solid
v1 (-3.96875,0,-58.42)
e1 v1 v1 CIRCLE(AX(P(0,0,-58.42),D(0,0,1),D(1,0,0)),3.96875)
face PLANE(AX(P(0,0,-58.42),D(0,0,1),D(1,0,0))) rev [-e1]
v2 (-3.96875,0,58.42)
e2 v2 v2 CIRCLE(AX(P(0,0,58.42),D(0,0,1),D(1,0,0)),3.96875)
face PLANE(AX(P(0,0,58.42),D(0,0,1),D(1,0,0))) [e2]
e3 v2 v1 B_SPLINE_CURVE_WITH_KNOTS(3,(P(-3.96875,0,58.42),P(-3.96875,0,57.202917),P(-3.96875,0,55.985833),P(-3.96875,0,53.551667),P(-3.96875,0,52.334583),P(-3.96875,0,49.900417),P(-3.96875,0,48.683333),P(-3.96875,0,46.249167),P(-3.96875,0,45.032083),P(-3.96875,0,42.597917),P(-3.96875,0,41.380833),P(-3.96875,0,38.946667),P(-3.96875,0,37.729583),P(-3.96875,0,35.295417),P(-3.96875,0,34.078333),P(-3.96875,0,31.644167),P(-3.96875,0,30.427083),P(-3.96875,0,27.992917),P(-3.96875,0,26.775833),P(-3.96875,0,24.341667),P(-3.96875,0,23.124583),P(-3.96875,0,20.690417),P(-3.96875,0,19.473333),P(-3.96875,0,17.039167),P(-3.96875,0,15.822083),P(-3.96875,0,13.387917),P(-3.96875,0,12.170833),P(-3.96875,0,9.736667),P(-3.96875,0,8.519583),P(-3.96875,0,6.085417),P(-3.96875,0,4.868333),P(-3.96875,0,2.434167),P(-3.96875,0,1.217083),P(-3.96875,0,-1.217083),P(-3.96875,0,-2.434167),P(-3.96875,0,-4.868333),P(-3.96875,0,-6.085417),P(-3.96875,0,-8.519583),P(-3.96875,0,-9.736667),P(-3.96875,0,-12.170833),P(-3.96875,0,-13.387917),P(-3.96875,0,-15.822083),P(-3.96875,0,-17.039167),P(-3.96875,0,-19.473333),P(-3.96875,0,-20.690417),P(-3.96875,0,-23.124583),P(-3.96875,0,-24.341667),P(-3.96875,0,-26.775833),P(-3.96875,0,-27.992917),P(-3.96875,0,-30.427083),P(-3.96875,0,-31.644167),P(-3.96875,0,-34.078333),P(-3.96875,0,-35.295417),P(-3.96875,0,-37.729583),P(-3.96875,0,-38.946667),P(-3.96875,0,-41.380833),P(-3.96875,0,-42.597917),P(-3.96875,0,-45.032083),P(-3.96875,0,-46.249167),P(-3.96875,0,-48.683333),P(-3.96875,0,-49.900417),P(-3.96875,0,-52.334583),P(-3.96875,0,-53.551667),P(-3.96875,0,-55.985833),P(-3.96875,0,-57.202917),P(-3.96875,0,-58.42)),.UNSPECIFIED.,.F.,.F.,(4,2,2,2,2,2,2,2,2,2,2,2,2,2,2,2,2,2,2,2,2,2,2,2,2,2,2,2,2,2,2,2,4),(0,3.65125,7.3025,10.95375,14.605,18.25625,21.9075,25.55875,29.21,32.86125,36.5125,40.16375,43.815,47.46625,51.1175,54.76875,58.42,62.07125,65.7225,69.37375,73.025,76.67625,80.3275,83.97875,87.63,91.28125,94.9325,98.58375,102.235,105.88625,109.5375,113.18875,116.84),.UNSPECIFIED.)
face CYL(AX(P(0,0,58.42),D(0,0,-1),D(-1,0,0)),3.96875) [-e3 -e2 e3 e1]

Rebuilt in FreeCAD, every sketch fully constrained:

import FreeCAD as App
import Part
import Sketcher
Q = App.Units.Quantity

doc = App.newDocument("Part")
params = doc.addObject("Spreadsheet::Sheet", "Params")
for row, (alias, value) in enumerate([
    ("sketch1_diameter", "0.3125 in"),
    ("pad1_length", "4.6 in"),
], start=1):
    params.set(f"A{row}", alias)
    params.set(f"B{row}", "=" + value)
    params.setAlias(f"B{row}", alias)

body = doc.addObject("PartDesign::Body", "Body")

# Sketch on XY plane
sketch1 = body.newObject("Sketcher::SketchObject", "Sketch")
sketch1.AttachmentSupport = (doc.getObject("XY_Plane"), [""])
sketch1.MapMode = "FlatFace"
sketch1.addGeometry(Part.Circle(App.Vector(0, 0, 0), App.Vector(0, 0, 1), 4), False)
sketch1.addConstraint([
    Sketcher.Constraint("Coincident", 0, 3, -1, 1),
    Sketcher.Constraint("Diameter", 0, Q("0.3125 in")),
])
sketch1.setExpression("Constraints[1]", "Params.sketch1_diameter")
pad1 = body.newObject("PartDesign::Pad", "Pad")
pad1.Profile = sketch1
pad1.setExpression("Length", "Params.pad1_length")
pad1.Midplane = True

doc.recompute()
